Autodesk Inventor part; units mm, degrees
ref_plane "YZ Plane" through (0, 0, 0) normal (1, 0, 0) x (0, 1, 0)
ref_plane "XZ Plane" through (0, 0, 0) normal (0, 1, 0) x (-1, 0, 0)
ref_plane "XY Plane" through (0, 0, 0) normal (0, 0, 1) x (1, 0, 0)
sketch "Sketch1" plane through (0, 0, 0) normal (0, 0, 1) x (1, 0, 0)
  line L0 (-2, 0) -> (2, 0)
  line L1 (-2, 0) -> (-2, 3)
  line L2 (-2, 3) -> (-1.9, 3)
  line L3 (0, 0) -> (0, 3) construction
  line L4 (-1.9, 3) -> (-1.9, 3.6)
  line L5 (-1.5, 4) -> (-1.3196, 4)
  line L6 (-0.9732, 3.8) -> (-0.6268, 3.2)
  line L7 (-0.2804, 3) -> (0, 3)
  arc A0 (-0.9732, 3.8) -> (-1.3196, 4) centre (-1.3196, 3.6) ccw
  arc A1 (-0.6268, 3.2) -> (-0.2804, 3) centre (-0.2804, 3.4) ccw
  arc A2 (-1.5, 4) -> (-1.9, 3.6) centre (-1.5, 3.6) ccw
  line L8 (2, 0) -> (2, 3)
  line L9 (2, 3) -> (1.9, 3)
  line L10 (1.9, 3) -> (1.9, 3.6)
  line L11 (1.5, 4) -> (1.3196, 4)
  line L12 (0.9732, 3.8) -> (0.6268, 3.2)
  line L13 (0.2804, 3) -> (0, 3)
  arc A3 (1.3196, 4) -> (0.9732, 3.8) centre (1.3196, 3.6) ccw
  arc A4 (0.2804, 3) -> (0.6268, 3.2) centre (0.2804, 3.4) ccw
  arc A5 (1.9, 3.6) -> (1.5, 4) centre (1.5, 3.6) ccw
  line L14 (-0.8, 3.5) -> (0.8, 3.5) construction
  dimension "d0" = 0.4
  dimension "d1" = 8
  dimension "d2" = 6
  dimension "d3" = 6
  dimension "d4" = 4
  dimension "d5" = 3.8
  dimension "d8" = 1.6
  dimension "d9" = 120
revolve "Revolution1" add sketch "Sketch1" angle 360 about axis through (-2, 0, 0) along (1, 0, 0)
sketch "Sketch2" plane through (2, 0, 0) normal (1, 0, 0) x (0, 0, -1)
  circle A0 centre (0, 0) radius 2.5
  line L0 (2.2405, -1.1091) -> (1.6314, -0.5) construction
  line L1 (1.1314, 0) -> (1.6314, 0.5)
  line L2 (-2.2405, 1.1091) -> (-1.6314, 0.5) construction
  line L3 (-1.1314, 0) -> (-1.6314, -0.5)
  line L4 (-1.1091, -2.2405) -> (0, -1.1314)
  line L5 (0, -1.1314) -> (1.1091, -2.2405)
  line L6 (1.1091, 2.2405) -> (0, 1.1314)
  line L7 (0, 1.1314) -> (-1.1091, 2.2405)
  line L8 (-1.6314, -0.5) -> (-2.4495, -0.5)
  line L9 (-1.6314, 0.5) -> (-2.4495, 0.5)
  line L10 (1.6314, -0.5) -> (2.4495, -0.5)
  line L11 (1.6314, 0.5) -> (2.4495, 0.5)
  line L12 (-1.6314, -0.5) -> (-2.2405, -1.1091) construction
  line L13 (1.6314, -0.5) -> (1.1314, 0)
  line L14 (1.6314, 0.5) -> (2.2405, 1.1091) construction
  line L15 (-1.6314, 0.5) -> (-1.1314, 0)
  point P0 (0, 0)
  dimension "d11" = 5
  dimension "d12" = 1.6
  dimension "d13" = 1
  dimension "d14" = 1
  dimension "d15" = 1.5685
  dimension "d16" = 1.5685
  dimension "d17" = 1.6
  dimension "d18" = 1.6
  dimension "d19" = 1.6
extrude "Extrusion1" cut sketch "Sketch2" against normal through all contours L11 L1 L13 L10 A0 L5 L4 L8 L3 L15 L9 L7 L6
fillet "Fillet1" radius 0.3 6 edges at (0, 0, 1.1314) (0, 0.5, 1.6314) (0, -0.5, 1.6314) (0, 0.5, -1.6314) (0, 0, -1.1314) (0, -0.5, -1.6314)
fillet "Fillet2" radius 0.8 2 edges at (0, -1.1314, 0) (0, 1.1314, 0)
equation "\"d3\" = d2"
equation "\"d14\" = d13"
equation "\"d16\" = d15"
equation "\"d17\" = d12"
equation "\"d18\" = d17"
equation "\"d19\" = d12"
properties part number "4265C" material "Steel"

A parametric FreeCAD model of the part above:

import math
import FreeCAD as App
import Part
import Sketcher
from FreeCAD import Vector
Q = App.Units.Quantity


def edges_at(feature, points):
    """Names of the edges that pass closest to the given points."""
    edges = feature.Shape.Edges
    near = lambda p: min(range(len(edges)), key=lambda i: edges[i].distToShape(Part.Vertex(*p))[0])
    return sorted({f"Edge{near(p) + 1}" for p in points})

doc = App.newDocument("Part")
params = doc.addObject("Spreadsheet::Sheet", "Params")
for row, (alias, value) in enumerate([
    ("sketch1_radius", "0.4 mm"),
    ("sketch1_width", "4 mm"),
    ("sketch1_width2", "0.1 mm"),
    ("revolution_angle", "360 deg"),
    ("sketch2_radius", "2.5 mm"),
    ("fillet_radius", "0.3 mm"),
    ("fillet2_radius", "0.8 mm"),
], start=1):
    params.set(f"A{row}", alias)
    params.set(f"B{row}", "=" + value)
    params.setAlias(f"B{row}", alias)

body = doc.addObject("PartDesign::Body", "Body")

sketch1 = doc.addObject("Sketcher::SketchObject", "Sketch")
body.addObject(sketch1)
sketch1.AttachmentSupport = (doc.XY_Plane, [""])
sketch1.MapMode = "FlatFace"
sketch1.addGeometry([
    Part.LineSegment(Vector(-2, 3, 0), Vector(-2, 0, 0)),
    Part.LineSegment(Vector(-2, 0, 0), Vector(2, 0, 0)),
    Part.LineSegment(Vector(2, 0, 0), Vector(2, 3, 0)),
    Part.LineSegment(Vector(2, 3, 0), Vector(1.9, 3, 0)),
    Part.LineSegment(Vector(1.9, 3, 0), Vector(1.9, 3.6, 0)),
    Part.ArcOfCircle(Part.Circle(Vector(1.5, 3.6, 0), Vector(0, 0, 1), 0.4), math.radians(0), math.radians(90)),
    Part.LineSegment(Vector(1.5, 4, 0), Vector(1.32, 4, 0)),
    Part.ArcOfCircle(Part.Circle(Vector(1.32, 3.6, 0), Vector(0, 0, 1), 0.4), math.radians(90), math.radians(150)),
    Part.LineSegment(Vector(0.97, 3.8, 0), Vector(0.63, 3.2, 0)),
    Part.ArcOfCircle(Part.Circle(Vector(0.28, 3.4, 0), Vector(0, 0, 1), 0.4), math.radians(-90), math.radians(-30)),
    Part.LineSegment(Vector(0.28, 3, 0), Vector(-0.28, 3, 0)),
    Part.ArcOfCircle(Part.Circle(Vector(-0.28, 3.4, 0), Vector(0, 0, 1), 0.4), math.radians(-150), math.radians(-90)),
    Part.LineSegment(Vector(-0.63, 3.2, 0), Vector(-0.97, 3.8, 0)),
    Part.ArcOfCircle(Part.Circle(Vector(-1.32, 3.6, 0), Vector(0, 0, 1), 0.4), math.radians(30), math.radians(90)),
    Part.LineSegment(Vector(-1.32, 4, 0), Vector(-1.5, 4, 0)),
    Part.ArcOfCircle(Part.Circle(Vector(-1.5, 3.6, 0), Vector(0, 0, 1), 0.4), math.radians(90), math.radians(180)),
    Part.LineSegment(Vector(-1.9, 3.6, 0), Vector(-1.9, 3, 0)),
    Part.LineSegment(Vector(-1.9, 3, 0), Vector(-2, 3, 0)),
], False)
sketch1.addConstraint([
    Sketcher.Constraint("Coincident", 0, 2, 1, 1),
    Sketcher.Constraint("Coincident", 1, 2, 2, 1),
    Sketcher.Constraint("Coincident", 2, 2, 3, 1),
    Sketcher.Constraint("Coincident", 3, 2, 4, 1),
    Sketcher.Constraint("Tangent", 4, 2, 5, 1),
    Sketcher.Constraint("Tangent", 5, 2, 6, 1),
    Sketcher.Constraint("Tangent", 6, 2, 7, 1),
    Sketcher.Constraint("Tangent", 7, 2, 8, 1),
    Sketcher.Constraint("Tangent", 8, 2, 9, 2),
    Sketcher.Constraint("Tangent", 9, 1, 10, 1),
    Sketcher.Constraint("Tangent", 10, 2, 11, 2),
    Sketcher.Constraint("Tangent", 11, 1, 12, 1),
    Sketcher.Constraint("Tangent", 12, 2, 13, 1),
    Sketcher.Constraint("Tangent", 13, 2, 14, 1),
    Sketcher.Constraint("Tangent", 14, 2, 15, 1),
    Sketcher.Constraint("Tangent", 15, 2, 16, 1),
    Sketcher.Constraint("Coincident", 16, 2, 17, 1),
    Sketcher.Constraint("Coincident", 17, 2, 0, 1),
    Sketcher.Constraint("Vertical", 0),
    Sketcher.Constraint("Horizontal", 1),
    Sketcher.Constraint("Vertical", 2),
    Sketcher.Constraint("Horizontal", 3),
    Sketcher.Constraint("Vertical", 4),
    Sketcher.Constraint("Horizontal", 6),
    Sketcher.Constraint("Horizontal", 10),
    Sketcher.Constraint("Horizontal", 14),
    Sketcher.Constraint("Vertical", 16),
    Sketcher.Constraint("Horizontal", 17),
    Sketcher.Constraint("Equal", 5, 7),
    Sketcher.Constraint("Equal", 7, 9),
    Sketcher.Constraint("Equal", 9, 11),
    Sketcher.Constraint("Equal", 11, 13),
    Sketcher.Constraint("Equal", 13, 15),
    Sketcher.Constraint("Symmetric", 0, 2, 1, 2, -1, 1),
    Sketcher.Constraint("Symmetric", 7, 3, 13, 3, -2),
    Sketcher.Constraint("Symmetric", 3, 2, 16, 2, -2),
    Sketcher.Constraint("Horizontal", 3, 2, 9, 1),
    Sketcher.Constraint("Horizontal", 8, 2, 11, 1),
    Sketcher.Constraint("Radius", 5, Q("0.4 mm")),
    Sketcher.Constraint("DistanceX", 1, 1, 1, 2, Q("4 mm")),
    Sketcher.Constraint("DistanceY", -1, 1, 5, 2, Q("4 mm")),
    Sketcher.Constraint("DistanceY", -1, 1, 7, 2, Q("3.8 mm")),
    Sketcher.Constraint("DistanceX", 11, 3, 7, 3, Q("1.6 mm")),
    Sketcher.Constraint("DistanceY", 9, 3, 7, 2, Q("0.4 mm")),
    Sketcher.Constraint("DistanceX", 3, 2, 3, 1, Q("0.1 mm")),
])
sketch1.setExpression("Constraints[38]", "Params.sketch1_radius")
sketch1.setExpression("Constraints[39]", "Params.sketch1_width")
sketch1.setExpression("Constraints[44]", "Params.sketch1_width2")
revolution = doc.addObject("PartDesign::Revolution", "Revolution")
body.addObject(revolution)
revolution.Profile = sketch1
revolution.ReferenceAxis = (sketch1, ["H_Axis"])
revolution.setExpression("Angle", "Params.revolution_angle")

sketch2 = doc.addObject("Sketcher::SketchObject", "Sketch001")
body.addObject(sketch2)
sketch2.AttachmentSupport = (doc.YZ_Plane, [""])
sketch2.MapMode = "FlatFace"
sketch2.AttachmentOffset = App.Placement(Vector(0, 0, 2), App.Rotation())
sketch2.addGeometry([
    Part.LineSegment(Vector(0.5, -1.6, 0), Vector(0.5, -2.4, 0)),
    Part.ArcOfCircle(Part.Circle(Vector(0, 0, 0), Vector(0, 0, 1), 2.5), math.radians(-78), math.radians(-26)),
    Part.LineSegment(Vector(2.2, -1.1, 0), Vector(1.1, 0, 0)),
    Part.LineSegment(Vector(1.1, 0, 0), Vector(2.2, 1.1, 0)),
    Part.ArcOfCircle(Part.Circle(Vector(0, 0, 0), Vector(0, 0, 1), 2.5), math.radians(26), math.radians(78)),
    Part.LineSegment(Vector(0.5, 2.4, 0), Vector(0.5, 1.6, 0)),
    Part.LineSegment(Vector(0.5, 1.6, 0), Vector(0, 1.1, 0)),
    Part.LineSegment(Vector(0, 1.1, 0), Vector(-0.5, 1.6, 0)),
    Part.LineSegment(Vector(-0.5, 1.6, 0), Vector(-0.5, 2.4, 0)),
    Part.ArcOfCircle(Part.Circle(Vector(0, 0, 0), Vector(0, 0, 1), 2.5), math.radians(102), math.radians(154)),
    Part.LineSegment(Vector(-2.2, 1.1, 0), Vector(-1.1, 0, 0)),
    Part.LineSegment(Vector(-1.1, 0, 0), Vector(-2.2, -1.1, 0)),
    Part.ArcOfCircle(Part.Circle(Vector(0, 0, 0), Vector(0, 0, 1), 2.5), math.radians(-154), math.radians(-102)),
    Part.LineSegment(Vector(-0.5, -2.4, 0), Vector(-0.5, -1.6, 0)),
    Part.LineSegment(Vector(-0.5, -1.6, 0), Vector(0, -1.1, 0)),
    Part.LineSegment(Vector(0, -1.1, 0), Vector(0.5, -1.6, 0)),
], False)
sketch2.addConstraint([
    Sketcher.Constraint("Coincident", 0, 2, 1, 1),
    Sketcher.Constraint("Coincident", 1, 2, 2, 1),
    Sketcher.Constraint("Coincident", 2, 2, 3, 1),
    Sketcher.Constraint("Coincident", 3, 2, 4, 1),
    Sketcher.Constraint("Coincident", 4, 2, 5, 1),
    Sketcher.Constraint("Coincident", 5, 2, 6, 1),
    Sketcher.Constraint("Coincident", 6, 2, 7, 1),
    Sketcher.Constraint("Coincident", 7, 2, 8, 1),
    Sketcher.Constraint("Coincident", 8, 2, 9, 1),
    Sketcher.Constraint("Coincident", 9, 2, 10, 1),
    Sketcher.Constraint("Coincident", 10, 2, 11, 1),
    Sketcher.Constraint("Coincident", 11, 2, 12, 1),
    Sketcher.Constraint("Coincident", 12, 2, 13, 1),
    Sketcher.Constraint("Coincident", 13, 2, 14, 1),
    Sketcher.Constraint("Coincident", 14, 2, 15, 1),
    Sketcher.Constraint("Coincident", 15, 2, 0, 1),
    Sketcher.Constraint("Vertical", 0),
    Sketcher.Constraint("Vertical", 5),
    Sketcher.Constraint("Vertical", 8),
    Sketcher.Constraint("Vertical", 13),
    Sketcher.Constraint("Coincident", 1, 3, -1, 1),
    Sketcher.Constraint("Coincident", 4, 3, -1, 1),
    Sketcher.Constraint("Coincident", 9, 3, -1, 1),
    Sketcher.Constraint("Coincident", 12, 3, -1, 1),
    Sketcher.Constraint("Equal", 1, 4),
    Sketcher.Constraint("Equal", 4, 9),
    Sketcher.Constraint("Equal", 9, 12),
    Sketcher.Constraint("Symmetric", 2, 2, 10, 2, -1, 1),
    Sketcher.Constraint("Symmetric", 5, 2, 13, 2, -1, 1),
    Sketcher.Constraint("Symmetric", 6, 2, 14, 2, -1, 1),
    Sketcher.Constraint("Symmetric", 7, 2, 15, 2, -1, 1),
    Sketcher.Constraint("Symmetric", 5, 2, 7, 2, -2),
    Sketcher.Constraint("PointOnObject", 2, 2, -1),
    Sketcher.Constraint("PointOnObject", 6, 2, -2),
    Sketcher.Constraint("Perpendicular", 2, 3),
    Sketcher.Constraint("Parallel", 3, 6),
    Sketcher.Constraint("Perpendicular", 6, 7),
    Sketcher.Constraint("Parallel", 7, 10),
    Sketcher.Constraint("Perpendicular", 10, 11),
    Sketcher.Constraint("Radius", 1, Q("2.5 mm")),
    Sketcher.Constraint("DistanceX", 7, 2, 5, 2, Q("1 mm")),
    Sketcher.Constraint("Distance", 2, Q("1.5685 mm")),
    Sketcher.Constraint("DistanceY", 0, 2, 0, 1, Q("0.818 mm")),
])
sketch2.setExpression("Constraints[39]", "Params.sketch2_radius")
pocket1 = doc.addObject("PartDesign::Pocket", "Pocket")
body.addObject(pocket1)
pocket1.Profile = sketch2
pocket1.Type = "ThroughAll"
doc.recompute()

fillet = doc.addObject("PartDesign::Fillet", "Fillet")
body.addObject(fillet)
fillet.Base = (pocket1, edges_at(pocket1, [
    (0, 0, 1.131),
    (0, 0.5, 1.631),
    (0, -0.5, 1.631),
    (0, 0.5, -1.631),
    (0, 0, -1.131),
    (0, -0.5, -1.631),
]))
fillet.setExpression("Radius", "Params.fillet_radius")
doc.recompute()

fillet2 = doc.addObject("PartDesign::Fillet", "Fillet001")
body.addObject(fillet2)
fillet2.Base = (fillet, edges_at(fillet, [(0, -1.131, 0), (0, 1.131, 0)]))
fillet2.setExpression("Radius", "Params.fillet2_radius")

doc.recompute()
